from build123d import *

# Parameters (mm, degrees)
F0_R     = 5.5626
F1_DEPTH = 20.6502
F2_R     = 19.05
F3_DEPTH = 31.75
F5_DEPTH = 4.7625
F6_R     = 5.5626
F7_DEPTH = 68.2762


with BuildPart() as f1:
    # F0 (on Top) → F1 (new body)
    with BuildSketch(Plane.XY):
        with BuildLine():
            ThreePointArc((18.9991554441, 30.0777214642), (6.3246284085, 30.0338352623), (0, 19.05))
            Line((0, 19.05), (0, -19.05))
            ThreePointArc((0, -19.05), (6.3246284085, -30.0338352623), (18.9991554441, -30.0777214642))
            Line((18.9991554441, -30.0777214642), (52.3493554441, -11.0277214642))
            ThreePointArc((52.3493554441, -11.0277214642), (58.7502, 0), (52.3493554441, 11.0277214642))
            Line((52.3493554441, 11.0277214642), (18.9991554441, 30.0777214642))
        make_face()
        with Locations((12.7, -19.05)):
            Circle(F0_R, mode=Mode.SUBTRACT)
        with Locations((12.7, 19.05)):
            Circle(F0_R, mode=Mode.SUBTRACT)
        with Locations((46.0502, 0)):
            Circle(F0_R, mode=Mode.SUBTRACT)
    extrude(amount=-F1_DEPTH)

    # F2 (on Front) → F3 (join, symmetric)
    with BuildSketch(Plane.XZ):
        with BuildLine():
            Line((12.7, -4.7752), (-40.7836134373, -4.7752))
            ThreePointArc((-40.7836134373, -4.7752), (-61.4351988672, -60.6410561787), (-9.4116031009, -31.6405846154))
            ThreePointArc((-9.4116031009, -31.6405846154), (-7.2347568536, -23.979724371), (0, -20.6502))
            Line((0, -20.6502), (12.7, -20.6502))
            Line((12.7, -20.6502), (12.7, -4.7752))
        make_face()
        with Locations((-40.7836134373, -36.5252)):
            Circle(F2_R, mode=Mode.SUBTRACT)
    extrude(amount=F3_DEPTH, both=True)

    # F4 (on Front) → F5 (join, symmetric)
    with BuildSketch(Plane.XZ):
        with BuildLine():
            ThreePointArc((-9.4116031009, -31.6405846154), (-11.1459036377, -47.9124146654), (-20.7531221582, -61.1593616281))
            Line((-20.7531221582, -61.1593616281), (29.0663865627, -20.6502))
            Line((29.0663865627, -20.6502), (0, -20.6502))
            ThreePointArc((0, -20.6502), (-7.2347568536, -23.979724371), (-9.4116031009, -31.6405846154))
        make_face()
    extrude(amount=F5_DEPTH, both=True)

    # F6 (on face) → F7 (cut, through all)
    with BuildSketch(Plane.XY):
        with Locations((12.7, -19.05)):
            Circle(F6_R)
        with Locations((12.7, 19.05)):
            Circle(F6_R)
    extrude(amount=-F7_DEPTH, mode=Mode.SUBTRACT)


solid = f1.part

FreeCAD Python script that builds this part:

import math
import FreeCAD as App
import Part
import Sketcher

V = App.Vector
Q = App.Units.Quantity

doc = App.newDocument("Part")
body = doc.addObject("PartDesign::Body", "Body")

sketch1 = body.newObject("Sketcher::SketchObject", "Sketch")
sketch1.AttachmentSupport = (doc.getObject("XY_Plane"), [""])
sketch1.MapMode = "FlatFace"
sketch1.addGeometry([
    Part.ArcOfCircle(Part.Circle(V(13, 19, 0), V(0, 0, 1), 13), math.radians(60), math.radians(180)),
    Part.LineSegment(V(0, 19, 0), V(0, -19, 0)),
    Part.ArcOfCircle(Part.Circle(V(13, -19, 0), V(0, 0, 1), 13), math.radians(180), math.radians(300)),
    Part.LineSegment(V(19, -30, 0), V(52, -11, 0)),
    Part.ArcOfCircle(Part.Circle(V(46, 0, 0), V(0, 0, 1), 13), math.radians(-60), math.radians(60)),
    Part.LineSegment(V(52, 11, 0), V(19, 30, 0)),
    Part.Circle(V(13, -19, 0), V(0, 0, 1), 6),
    Part.Circle(V(46, 0, 0), V(0, 0, 1), 6),
    Part.Circle(V(13, 19, 0), V(0, 0, 1), 6),
], False)
sketch1.addConstraint([
    Sketcher.Constraint("Tangent", 0, 2, 1, 1),
    Sketcher.Constraint("Tangent", 1, 2, 2, 1),
    Sketcher.Constraint("Tangent", 2, 2, 3, 1),
    Sketcher.Constraint("Tangent", 3, 2, 4, 1),
    Sketcher.Constraint("Tangent", 4, 2, 5, 1),
    Sketcher.Constraint("Tangent", 5, 2, 0, 1),
    Sketcher.Constraint("Vertical", 1),
    Sketcher.Constraint("Coincident", 6, 3, 2, 3),
    Sketcher.Constraint("Coincident", 7, 3, 4, 3),
    Sketcher.Constraint("Coincident", 8, 3, 0, 3),
    Sketcher.Constraint("Equal", 0, 2),
    Sketcher.Constraint("Equal", 2, 4),
    Sketcher.Constraint("Equal", 6, 7),
    Sketcher.Constraint("Equal", 7, 8),
    Sketcher.Constraint("Symmetric", 0, 2, 1, 2, -1, 1),
    Sketcher.Constraint("PointOnObject", 4, 3, -1),
    Sketcher.Constraint("Radius", 0, Q("0.5 in")),
    Sketcher.Constraint("Diameter", 6, Q("0.438 in")),
    Sketcher.Constraint("DistanceY", 1, 2, 1, 1, Q("1.5 in")),
    Sketcher.Constraint("DistanceX", -1, 1, 4, 3, Q("1.813 in")),
])
pad1 = body.newObject("PartDesign::Pad", "Pad")
pad1.Profile = sketch1
pad1.Length = Q("0.813 in")
pad1.Reversed = True

sketch2 = body.newObject("Sketcher::SketchObject", "Sketch001")
sketch2.AttachmentSupport = (doc.getObject("XZ_Plane"), [""])
sketch2.MapMode = "FlatFace"
sketch2.addGeometry([
    Part.LineSegment(V(13, -5, 0), V(-41, -5, 0)),
    Part.ArcOfCircle(Part.Circle(V(-41, -37, 0), V(0, 0, 1), 32), math.radians(90), math.radians(369)),
    Part.ArcOfCircle(Part.Circle(V(0, -30, 0), V(0, 0, 1), 10), math.radians(90), math.radians(189)),
    Part.LineSegment(V(0, -21, 0), V(13, -21, 0)),
    Part.LineSegment(V(13, -21, 0), V(13, -5, 0)),
    Part.Circle(V(-41, -37, 0), V(0, 0, 1), 19),
], False)
sketch2.addConstraint([
    Sketcher.Constraint("Tangent", 0, 2, 1, 1),
    Sketcher.Constraint("Tangent", 1, 2, 2, 2),
    Sketcher.Constraint("Tangent", 2, 1, 3, 1),
    Sketcher.Constraint("Coincident", 3, 2, 4, 1),
    Sketcher.Constraint("Coincident", 4, 2, 0, 1),
    Sketcher.Constraint("Horizontal", 0),
    Sketcher.Constraint("Horizontal", 3),
    Sketcher.Constraint("Vertical", 4),
    Sketcher.Constraint("Coincident", 5, 3, 1, 3),
    Sketcher.Constraint("PointOnObject", 2, 3, -2),
    Sketcher.Constraint("Diameter", 5, Q("1.5 in")),
    Sketcher.Constraint("Radius", 1, Q("1.25 in")),
    Sketcher.Constraint("DistanceX", 3, 1, 3, 2, Q("0.5 in")),
    Sketcher.Constraint("Radius", 2, Q("0.375 in")),
    Sketcher.Constraint("DistanceY", 2, 3, 0, 2, Q("1 in")),
    Sketcher.Constraint("DistanceY", 1, 3, -1, 1, Q("1.438 in")),
])
pad2 = body.newObject("PartDesign::Pad", "Pad001")
pad2.Profile = sketch2
pad2.Length = Q("2.5 in")
pad2.Midplane = True

sketch3 = body.newObject("Sketcher::SketchObject", "Sketch002")
sketch3.AttachmentSupport = (doc.getObject("XZ_Plane"), [""])
sketch3.MapMode = "FlatFace"
sketch3.addGeometry([
    Part.ArcOfCircle(Part.Circle(V(-41, -37, 0), V(0, 0, 1), 32), math.radians(-51), math.radians(9)),
    Part.LineSegment(V(-21, -61, 0), V(29, -21, 0)),
    Part.LineSegment(V(29, -21, 0), V(0, -21, 0)),
    Part.ArcOfCircle(Part.Circle(V(0, -30, 0), V(0, 0, 1), 10), math.radians(90), math.radians(189)),
], False)
sketch3.addConstraint([
    Sketcher.Constraint("Tangent", 0, 1, 1, 1),
    Sketcher.Constraint("Coincident", 1, 2, 2, 1),
    Sketcher.Constraint("Tangent", 2, 2, 3, 1),
    Sketcher.Constraint("Tangent", 3, 2, 0, 2),
    Sketcher.Constraint("Horizontal", 2),
    Sketcher.Constraint("PointOnObject", 3, 3, -2),
    Sketcher.Constraint("Radius", 0, Q("1.25 in")),
    Sketcher.Constraint("Radius", 3, Q("0.375 in")),
    Sketcher.Constraint("DistanceY", 0, 3, 3, 3, Q("0.25 in")),
    Sketcher.Constraint("DistanceX", 0, 3, 1, 2, Q("2.75 in")),
    Sketcher.Constraint("DistanceY", 0, 3, -1, 1, Q("1.438 in")),
])
pad3 = body.newObject("PartDesign::Pad", "Pad002")
pad3.Profile = sketch3
pad3.Length = Q("0.375 in")
pad3.Midplane = True

sketch4 = body.newObject("Sketcher::SketchObject", "Sketch003")
sketch4.AttachmentSupport = (doc.getObject("XY_Plane"), [""])
sketch4.MapMode = "FlatFace"
sketch4.addGeometry([
    Part.Circle(V(13, -19, 0), V(0, 0, 1), 6),
    Part.Circle(V(13, 19, 0), V(0, 0, 1), 6),
], False)
sketch4.addConstraint([
    Sketcher.Constraint("Equal", 0, 1),
    Sketcher.Constraint("Symmetric", 0, 3, 1, 3, -1),
    Sketcher.Constraint("Diameter", 0, Q("0.438 in")),
    Sketcher.Constraint("DistanceX", -1, 1, 0, 3, Q("0.5 in")),
    Sketcher.Constraint("DistanceY", 0, 3, 1, 3, Q("1.5 in")),
])
pocket1 = body.newObject("PartDesign::Pocket", "Pocket")
pocket1.Profile = sketch4
pocket1.Type = "ThroughAll"

doc.recompute()
